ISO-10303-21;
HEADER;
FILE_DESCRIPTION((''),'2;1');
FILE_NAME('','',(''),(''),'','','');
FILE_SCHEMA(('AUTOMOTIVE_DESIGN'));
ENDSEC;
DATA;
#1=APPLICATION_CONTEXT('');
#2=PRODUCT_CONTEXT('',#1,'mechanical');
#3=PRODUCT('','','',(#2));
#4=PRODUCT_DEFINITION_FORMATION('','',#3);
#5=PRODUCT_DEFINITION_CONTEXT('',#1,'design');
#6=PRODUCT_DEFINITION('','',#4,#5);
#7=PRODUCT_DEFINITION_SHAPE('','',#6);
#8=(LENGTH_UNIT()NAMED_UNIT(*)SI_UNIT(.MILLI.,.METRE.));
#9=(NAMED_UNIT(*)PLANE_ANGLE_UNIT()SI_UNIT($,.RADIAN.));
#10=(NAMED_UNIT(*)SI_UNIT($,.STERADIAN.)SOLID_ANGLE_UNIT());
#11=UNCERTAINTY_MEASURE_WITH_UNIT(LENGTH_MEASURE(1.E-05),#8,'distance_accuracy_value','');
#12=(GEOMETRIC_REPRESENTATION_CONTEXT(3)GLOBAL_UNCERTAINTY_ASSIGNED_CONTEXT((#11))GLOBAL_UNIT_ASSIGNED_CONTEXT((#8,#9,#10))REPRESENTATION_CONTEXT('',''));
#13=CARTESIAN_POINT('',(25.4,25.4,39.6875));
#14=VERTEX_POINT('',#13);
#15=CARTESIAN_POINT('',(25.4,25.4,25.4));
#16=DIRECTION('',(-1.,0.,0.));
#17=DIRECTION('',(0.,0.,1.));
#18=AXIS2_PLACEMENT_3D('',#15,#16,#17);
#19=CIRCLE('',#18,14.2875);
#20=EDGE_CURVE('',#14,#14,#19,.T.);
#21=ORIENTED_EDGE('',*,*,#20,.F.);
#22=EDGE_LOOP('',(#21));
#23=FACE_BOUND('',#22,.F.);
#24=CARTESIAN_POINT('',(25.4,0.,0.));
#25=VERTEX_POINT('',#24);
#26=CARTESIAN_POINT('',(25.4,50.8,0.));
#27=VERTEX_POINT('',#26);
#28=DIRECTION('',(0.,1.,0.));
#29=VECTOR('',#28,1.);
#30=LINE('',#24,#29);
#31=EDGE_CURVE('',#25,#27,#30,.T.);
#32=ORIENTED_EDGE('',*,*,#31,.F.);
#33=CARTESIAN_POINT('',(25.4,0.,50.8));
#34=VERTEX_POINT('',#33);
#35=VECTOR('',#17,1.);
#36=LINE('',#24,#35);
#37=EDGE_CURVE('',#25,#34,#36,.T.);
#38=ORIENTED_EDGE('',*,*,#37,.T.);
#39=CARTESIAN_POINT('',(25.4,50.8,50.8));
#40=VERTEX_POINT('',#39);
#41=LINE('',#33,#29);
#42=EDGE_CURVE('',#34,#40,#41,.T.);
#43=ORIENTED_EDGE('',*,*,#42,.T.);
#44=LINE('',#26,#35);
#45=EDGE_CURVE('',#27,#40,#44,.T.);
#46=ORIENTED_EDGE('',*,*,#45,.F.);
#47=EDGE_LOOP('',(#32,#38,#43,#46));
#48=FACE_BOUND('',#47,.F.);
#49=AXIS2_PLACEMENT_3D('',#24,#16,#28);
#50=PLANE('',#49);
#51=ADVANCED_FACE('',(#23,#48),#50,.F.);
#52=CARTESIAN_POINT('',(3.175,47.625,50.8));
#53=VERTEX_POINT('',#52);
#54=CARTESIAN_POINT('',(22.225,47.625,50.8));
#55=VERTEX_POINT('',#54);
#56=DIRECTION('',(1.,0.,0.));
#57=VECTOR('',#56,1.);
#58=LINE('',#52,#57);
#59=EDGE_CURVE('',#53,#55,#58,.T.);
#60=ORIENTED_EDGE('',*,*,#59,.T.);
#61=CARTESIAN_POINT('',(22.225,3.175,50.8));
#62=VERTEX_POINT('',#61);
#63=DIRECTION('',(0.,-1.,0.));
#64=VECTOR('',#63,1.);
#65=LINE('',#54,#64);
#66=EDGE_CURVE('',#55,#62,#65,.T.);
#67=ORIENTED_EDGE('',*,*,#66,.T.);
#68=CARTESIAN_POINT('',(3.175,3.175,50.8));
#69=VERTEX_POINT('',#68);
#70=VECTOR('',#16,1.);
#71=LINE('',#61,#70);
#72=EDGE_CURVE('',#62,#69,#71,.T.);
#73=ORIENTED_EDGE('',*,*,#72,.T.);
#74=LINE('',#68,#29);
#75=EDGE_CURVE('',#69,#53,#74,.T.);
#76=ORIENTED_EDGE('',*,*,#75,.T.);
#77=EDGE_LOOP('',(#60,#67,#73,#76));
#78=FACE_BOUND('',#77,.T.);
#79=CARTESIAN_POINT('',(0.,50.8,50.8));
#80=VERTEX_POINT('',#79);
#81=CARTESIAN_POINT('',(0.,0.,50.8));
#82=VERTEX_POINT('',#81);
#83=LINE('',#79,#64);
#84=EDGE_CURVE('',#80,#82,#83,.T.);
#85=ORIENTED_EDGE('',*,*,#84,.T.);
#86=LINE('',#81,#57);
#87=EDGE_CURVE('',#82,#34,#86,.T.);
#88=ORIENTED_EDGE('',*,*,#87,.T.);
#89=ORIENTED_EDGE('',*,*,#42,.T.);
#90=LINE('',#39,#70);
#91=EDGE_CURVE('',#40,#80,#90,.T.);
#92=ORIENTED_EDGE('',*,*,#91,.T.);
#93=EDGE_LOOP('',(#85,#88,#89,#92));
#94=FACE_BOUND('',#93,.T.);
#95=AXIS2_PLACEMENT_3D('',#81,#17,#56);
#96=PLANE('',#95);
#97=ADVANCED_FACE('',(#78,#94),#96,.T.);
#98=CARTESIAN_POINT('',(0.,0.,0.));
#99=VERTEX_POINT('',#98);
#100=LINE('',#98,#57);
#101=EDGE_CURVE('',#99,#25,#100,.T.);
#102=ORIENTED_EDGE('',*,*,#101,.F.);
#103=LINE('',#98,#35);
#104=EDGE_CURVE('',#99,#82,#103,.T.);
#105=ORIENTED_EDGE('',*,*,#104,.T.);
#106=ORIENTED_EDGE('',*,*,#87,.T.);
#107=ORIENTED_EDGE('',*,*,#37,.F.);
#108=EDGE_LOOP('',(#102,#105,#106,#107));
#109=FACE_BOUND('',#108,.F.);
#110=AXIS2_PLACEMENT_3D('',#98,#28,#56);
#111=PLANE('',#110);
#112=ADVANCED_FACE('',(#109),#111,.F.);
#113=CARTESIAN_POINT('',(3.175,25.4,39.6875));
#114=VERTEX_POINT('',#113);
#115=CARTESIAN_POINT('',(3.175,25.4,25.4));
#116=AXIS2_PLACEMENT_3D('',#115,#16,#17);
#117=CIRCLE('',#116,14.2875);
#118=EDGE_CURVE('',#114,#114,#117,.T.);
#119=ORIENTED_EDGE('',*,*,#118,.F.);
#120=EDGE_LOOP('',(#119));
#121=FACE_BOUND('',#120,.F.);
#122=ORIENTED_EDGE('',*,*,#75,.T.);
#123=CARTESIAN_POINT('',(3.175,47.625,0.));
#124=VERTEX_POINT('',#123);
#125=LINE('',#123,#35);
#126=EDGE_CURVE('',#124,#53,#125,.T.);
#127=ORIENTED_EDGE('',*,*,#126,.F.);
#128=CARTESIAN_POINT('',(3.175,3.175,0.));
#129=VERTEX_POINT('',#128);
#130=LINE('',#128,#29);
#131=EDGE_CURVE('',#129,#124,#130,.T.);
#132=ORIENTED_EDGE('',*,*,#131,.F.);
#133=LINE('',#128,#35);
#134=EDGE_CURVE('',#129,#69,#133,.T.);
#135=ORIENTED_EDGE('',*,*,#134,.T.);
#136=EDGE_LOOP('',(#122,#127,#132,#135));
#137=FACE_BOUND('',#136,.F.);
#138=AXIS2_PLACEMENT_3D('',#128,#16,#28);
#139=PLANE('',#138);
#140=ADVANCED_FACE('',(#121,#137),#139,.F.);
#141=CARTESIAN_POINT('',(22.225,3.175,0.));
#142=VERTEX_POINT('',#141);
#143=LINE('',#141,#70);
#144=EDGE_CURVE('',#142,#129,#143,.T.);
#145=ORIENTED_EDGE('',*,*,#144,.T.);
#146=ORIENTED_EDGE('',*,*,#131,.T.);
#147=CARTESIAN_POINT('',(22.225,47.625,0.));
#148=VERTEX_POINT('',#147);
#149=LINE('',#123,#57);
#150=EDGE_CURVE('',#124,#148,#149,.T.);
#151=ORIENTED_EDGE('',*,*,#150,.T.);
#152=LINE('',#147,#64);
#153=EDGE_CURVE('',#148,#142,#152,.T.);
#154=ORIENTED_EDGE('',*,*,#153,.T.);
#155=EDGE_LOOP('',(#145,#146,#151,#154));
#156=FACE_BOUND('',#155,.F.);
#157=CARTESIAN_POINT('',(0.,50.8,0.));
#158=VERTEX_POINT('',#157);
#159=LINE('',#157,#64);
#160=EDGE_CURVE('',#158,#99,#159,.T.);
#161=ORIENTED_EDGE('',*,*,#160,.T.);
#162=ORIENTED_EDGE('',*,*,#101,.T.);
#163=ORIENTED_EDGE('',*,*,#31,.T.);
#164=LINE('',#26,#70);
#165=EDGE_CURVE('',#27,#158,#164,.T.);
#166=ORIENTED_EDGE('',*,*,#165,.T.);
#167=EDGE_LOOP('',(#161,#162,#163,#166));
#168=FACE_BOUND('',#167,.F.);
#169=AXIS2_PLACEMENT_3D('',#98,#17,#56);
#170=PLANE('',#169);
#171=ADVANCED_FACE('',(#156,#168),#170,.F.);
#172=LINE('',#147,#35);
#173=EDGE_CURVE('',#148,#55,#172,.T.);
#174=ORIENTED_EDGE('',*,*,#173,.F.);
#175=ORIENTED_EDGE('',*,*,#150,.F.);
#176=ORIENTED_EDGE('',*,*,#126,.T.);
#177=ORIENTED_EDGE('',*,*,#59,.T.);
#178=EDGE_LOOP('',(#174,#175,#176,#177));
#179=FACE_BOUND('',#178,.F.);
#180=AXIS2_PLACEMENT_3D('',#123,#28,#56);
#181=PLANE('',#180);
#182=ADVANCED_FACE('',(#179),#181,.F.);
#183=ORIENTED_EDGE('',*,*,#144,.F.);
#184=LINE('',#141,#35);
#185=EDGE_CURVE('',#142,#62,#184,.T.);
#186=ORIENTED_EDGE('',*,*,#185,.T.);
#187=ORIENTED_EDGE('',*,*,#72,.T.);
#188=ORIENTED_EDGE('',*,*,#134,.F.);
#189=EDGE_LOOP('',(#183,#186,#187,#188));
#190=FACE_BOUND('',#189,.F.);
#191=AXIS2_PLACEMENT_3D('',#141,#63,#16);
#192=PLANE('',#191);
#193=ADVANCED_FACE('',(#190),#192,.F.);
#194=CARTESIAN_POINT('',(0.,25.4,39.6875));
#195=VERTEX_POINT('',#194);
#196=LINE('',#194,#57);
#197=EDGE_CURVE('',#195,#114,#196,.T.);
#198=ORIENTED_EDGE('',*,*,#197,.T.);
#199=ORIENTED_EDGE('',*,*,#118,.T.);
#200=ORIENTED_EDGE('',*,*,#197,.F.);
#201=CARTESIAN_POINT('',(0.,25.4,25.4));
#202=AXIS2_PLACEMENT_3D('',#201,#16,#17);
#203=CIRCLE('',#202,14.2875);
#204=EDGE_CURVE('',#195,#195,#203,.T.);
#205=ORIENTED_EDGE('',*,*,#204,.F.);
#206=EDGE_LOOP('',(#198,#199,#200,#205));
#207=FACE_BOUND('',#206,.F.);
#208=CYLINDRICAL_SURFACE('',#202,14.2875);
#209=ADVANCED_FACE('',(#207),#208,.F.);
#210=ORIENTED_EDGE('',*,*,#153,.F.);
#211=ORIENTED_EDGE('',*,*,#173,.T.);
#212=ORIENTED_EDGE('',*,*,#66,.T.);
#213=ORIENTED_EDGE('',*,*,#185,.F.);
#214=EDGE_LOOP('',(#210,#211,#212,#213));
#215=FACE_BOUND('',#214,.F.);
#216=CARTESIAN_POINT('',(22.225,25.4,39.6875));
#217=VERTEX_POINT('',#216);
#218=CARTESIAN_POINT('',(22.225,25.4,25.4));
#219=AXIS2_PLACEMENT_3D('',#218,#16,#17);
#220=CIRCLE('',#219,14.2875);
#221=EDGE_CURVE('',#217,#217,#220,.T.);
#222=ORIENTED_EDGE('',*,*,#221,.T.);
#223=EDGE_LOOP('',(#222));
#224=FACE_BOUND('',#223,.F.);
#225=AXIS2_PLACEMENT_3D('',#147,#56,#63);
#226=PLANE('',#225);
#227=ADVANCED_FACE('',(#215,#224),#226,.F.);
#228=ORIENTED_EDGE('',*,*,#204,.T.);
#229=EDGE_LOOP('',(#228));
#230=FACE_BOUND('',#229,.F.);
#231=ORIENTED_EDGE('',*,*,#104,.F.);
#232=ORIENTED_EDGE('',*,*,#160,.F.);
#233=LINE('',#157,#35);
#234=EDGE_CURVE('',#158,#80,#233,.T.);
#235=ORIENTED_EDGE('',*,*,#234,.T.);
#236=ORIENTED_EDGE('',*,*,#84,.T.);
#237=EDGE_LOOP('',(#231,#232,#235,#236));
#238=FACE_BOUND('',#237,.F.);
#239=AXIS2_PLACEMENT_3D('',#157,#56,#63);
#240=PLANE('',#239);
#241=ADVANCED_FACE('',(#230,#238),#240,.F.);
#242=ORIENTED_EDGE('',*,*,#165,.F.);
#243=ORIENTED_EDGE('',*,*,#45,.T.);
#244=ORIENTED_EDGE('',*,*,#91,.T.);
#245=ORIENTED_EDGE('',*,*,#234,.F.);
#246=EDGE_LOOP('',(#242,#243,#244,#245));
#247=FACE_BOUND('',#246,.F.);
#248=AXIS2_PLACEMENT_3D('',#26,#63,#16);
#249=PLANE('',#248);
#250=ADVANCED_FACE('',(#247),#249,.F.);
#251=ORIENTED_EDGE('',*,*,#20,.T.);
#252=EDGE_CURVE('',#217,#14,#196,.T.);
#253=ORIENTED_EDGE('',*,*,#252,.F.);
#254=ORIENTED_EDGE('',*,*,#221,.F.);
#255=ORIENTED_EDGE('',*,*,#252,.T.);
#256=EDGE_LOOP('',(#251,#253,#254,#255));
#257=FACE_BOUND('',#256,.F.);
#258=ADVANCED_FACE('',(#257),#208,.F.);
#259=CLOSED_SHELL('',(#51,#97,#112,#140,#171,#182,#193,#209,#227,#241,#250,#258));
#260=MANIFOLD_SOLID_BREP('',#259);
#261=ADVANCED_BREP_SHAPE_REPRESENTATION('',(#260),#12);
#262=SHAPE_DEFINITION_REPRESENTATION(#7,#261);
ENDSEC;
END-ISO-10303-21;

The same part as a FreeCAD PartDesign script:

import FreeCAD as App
import Part
import Sketcher
from FreeCAD import Vector
Q = App.Units.Quantity


def add_polygon(sketch, points):
    """Adds a closed chain of lines whose ends are joined by coincident constraints."""
    first, n = sketch.GeometryCount, len(points)
    for a, b in zip(points, points[1:] + points[:1]):
        sketch.addGeometry(Part.LineSegment(App.Vector(*a, 0), App.Vector(*b, 0)), False)
    for i in range(n):
        sketch.addConstraint(Sketcher.Constraint("Coincident", first + i, 2, first + (i + 1) % n, 1))

doc = App.newDocument("Part")
body = doc.addObject("PartDesign::Body", "Body")

sketch1 = body.newObject("Sketcher::SketchObject", "Sketch")
sketch1.AttachmentSupport = (doc.getObject("XY_Plane"), [""])
sketch1.MapMode = "FlatFace"
add_polygon(sketch1, [(0, 51), (0, 0), (25, 0), (25, 51)])
add_polygon(sketch1, [(3, 3), (3, 48), (22, 48), (22, 3)])
sketch1.addConstraint(Sketcher.Constraint("Vertical", 0))
sketch1.addConstraint(Sketcher.Constraint("Horizontal", 1))
sketch1.addConstraint(Sketcher.Constraint("Vertical", 2))
sketch1.addConstraint(Sketcher.Constraint("Horizontal", 3))
sketch1.addConstraint(Sketcher.Constraint("Vertical", 4))
sketch1.addConstraint(Sketcher.Constraint("Horizontal", 5))
sketch1.addConstraint(Sketcher.Constraint("Vertical", 6))
sketch1.addConstraint(Sketcher.Constraint("Horizontal", 7))
sketch1.addConstraint(Sketcher.Constraint("Coincident", 0, 2, -1, 1))
sketch1.addConstraint(Sketcher.Constraint("DistanceX", 1, 1, 1, 2, Q("1 in")))
sketch1.addConstraint(Sketcher.Constraint("DistanceY", 0, 2, 0, 1, Q("2 in")))
sketch1.addConstraint(Sketcher.Constraint("DistanceX", -1, 1, 4, 2, Q("0.125 in")))
sketch1.addConstraint(Sketcher.Constraint("DistanceY", -1, 1, 6, 2, Q("0.125 in")))
sketch1.addConstraint(Sketcher.Constraint("DistanceY", 4, 2, 3, 2, Q("0.125 in")))
sketch1.addConstraint(Sketcher.Constraint("DistanceX", 5, 2, 2, 2, Q("0.125 in")))
pad1 = body.newObject("PartDesign::Pad", "Pad")
pad1.Profile = sketch1
pad1.Length = Q("2 in")

sketch2 = body.newObject("Sketcher::SketchObject", "Sketch001")
sketch2.AttachmentSupport = (doc.getObject("YZ_Plane"), [""])
sketch2.MapMode = "FlatFace"
sketch2.addGeometry(Part.Circle(Vector(25, 25, 0), Vector(0, 0, 1), 14), False)
sketch2.addConstraint(Sketcher.Constraint("Diameter", 0, Q("1.125 in")))
sketch2.addConstraint(Sketcher.Constraint("DistanceX", -1, 1, 0, 3, Q("1 in")))
sketch2.addConstraint(Sketcher.Constraint("DistanceY", -1, 1, 0, 3, Q("1 in")))
pocket1 = body.newObject("PartDesign::Pocket", "Pocket")
pocket1.Profile = sketch2
pocket1.Type = "ThroughAll"
pocket1.Reversed = True

doc.recompute()
